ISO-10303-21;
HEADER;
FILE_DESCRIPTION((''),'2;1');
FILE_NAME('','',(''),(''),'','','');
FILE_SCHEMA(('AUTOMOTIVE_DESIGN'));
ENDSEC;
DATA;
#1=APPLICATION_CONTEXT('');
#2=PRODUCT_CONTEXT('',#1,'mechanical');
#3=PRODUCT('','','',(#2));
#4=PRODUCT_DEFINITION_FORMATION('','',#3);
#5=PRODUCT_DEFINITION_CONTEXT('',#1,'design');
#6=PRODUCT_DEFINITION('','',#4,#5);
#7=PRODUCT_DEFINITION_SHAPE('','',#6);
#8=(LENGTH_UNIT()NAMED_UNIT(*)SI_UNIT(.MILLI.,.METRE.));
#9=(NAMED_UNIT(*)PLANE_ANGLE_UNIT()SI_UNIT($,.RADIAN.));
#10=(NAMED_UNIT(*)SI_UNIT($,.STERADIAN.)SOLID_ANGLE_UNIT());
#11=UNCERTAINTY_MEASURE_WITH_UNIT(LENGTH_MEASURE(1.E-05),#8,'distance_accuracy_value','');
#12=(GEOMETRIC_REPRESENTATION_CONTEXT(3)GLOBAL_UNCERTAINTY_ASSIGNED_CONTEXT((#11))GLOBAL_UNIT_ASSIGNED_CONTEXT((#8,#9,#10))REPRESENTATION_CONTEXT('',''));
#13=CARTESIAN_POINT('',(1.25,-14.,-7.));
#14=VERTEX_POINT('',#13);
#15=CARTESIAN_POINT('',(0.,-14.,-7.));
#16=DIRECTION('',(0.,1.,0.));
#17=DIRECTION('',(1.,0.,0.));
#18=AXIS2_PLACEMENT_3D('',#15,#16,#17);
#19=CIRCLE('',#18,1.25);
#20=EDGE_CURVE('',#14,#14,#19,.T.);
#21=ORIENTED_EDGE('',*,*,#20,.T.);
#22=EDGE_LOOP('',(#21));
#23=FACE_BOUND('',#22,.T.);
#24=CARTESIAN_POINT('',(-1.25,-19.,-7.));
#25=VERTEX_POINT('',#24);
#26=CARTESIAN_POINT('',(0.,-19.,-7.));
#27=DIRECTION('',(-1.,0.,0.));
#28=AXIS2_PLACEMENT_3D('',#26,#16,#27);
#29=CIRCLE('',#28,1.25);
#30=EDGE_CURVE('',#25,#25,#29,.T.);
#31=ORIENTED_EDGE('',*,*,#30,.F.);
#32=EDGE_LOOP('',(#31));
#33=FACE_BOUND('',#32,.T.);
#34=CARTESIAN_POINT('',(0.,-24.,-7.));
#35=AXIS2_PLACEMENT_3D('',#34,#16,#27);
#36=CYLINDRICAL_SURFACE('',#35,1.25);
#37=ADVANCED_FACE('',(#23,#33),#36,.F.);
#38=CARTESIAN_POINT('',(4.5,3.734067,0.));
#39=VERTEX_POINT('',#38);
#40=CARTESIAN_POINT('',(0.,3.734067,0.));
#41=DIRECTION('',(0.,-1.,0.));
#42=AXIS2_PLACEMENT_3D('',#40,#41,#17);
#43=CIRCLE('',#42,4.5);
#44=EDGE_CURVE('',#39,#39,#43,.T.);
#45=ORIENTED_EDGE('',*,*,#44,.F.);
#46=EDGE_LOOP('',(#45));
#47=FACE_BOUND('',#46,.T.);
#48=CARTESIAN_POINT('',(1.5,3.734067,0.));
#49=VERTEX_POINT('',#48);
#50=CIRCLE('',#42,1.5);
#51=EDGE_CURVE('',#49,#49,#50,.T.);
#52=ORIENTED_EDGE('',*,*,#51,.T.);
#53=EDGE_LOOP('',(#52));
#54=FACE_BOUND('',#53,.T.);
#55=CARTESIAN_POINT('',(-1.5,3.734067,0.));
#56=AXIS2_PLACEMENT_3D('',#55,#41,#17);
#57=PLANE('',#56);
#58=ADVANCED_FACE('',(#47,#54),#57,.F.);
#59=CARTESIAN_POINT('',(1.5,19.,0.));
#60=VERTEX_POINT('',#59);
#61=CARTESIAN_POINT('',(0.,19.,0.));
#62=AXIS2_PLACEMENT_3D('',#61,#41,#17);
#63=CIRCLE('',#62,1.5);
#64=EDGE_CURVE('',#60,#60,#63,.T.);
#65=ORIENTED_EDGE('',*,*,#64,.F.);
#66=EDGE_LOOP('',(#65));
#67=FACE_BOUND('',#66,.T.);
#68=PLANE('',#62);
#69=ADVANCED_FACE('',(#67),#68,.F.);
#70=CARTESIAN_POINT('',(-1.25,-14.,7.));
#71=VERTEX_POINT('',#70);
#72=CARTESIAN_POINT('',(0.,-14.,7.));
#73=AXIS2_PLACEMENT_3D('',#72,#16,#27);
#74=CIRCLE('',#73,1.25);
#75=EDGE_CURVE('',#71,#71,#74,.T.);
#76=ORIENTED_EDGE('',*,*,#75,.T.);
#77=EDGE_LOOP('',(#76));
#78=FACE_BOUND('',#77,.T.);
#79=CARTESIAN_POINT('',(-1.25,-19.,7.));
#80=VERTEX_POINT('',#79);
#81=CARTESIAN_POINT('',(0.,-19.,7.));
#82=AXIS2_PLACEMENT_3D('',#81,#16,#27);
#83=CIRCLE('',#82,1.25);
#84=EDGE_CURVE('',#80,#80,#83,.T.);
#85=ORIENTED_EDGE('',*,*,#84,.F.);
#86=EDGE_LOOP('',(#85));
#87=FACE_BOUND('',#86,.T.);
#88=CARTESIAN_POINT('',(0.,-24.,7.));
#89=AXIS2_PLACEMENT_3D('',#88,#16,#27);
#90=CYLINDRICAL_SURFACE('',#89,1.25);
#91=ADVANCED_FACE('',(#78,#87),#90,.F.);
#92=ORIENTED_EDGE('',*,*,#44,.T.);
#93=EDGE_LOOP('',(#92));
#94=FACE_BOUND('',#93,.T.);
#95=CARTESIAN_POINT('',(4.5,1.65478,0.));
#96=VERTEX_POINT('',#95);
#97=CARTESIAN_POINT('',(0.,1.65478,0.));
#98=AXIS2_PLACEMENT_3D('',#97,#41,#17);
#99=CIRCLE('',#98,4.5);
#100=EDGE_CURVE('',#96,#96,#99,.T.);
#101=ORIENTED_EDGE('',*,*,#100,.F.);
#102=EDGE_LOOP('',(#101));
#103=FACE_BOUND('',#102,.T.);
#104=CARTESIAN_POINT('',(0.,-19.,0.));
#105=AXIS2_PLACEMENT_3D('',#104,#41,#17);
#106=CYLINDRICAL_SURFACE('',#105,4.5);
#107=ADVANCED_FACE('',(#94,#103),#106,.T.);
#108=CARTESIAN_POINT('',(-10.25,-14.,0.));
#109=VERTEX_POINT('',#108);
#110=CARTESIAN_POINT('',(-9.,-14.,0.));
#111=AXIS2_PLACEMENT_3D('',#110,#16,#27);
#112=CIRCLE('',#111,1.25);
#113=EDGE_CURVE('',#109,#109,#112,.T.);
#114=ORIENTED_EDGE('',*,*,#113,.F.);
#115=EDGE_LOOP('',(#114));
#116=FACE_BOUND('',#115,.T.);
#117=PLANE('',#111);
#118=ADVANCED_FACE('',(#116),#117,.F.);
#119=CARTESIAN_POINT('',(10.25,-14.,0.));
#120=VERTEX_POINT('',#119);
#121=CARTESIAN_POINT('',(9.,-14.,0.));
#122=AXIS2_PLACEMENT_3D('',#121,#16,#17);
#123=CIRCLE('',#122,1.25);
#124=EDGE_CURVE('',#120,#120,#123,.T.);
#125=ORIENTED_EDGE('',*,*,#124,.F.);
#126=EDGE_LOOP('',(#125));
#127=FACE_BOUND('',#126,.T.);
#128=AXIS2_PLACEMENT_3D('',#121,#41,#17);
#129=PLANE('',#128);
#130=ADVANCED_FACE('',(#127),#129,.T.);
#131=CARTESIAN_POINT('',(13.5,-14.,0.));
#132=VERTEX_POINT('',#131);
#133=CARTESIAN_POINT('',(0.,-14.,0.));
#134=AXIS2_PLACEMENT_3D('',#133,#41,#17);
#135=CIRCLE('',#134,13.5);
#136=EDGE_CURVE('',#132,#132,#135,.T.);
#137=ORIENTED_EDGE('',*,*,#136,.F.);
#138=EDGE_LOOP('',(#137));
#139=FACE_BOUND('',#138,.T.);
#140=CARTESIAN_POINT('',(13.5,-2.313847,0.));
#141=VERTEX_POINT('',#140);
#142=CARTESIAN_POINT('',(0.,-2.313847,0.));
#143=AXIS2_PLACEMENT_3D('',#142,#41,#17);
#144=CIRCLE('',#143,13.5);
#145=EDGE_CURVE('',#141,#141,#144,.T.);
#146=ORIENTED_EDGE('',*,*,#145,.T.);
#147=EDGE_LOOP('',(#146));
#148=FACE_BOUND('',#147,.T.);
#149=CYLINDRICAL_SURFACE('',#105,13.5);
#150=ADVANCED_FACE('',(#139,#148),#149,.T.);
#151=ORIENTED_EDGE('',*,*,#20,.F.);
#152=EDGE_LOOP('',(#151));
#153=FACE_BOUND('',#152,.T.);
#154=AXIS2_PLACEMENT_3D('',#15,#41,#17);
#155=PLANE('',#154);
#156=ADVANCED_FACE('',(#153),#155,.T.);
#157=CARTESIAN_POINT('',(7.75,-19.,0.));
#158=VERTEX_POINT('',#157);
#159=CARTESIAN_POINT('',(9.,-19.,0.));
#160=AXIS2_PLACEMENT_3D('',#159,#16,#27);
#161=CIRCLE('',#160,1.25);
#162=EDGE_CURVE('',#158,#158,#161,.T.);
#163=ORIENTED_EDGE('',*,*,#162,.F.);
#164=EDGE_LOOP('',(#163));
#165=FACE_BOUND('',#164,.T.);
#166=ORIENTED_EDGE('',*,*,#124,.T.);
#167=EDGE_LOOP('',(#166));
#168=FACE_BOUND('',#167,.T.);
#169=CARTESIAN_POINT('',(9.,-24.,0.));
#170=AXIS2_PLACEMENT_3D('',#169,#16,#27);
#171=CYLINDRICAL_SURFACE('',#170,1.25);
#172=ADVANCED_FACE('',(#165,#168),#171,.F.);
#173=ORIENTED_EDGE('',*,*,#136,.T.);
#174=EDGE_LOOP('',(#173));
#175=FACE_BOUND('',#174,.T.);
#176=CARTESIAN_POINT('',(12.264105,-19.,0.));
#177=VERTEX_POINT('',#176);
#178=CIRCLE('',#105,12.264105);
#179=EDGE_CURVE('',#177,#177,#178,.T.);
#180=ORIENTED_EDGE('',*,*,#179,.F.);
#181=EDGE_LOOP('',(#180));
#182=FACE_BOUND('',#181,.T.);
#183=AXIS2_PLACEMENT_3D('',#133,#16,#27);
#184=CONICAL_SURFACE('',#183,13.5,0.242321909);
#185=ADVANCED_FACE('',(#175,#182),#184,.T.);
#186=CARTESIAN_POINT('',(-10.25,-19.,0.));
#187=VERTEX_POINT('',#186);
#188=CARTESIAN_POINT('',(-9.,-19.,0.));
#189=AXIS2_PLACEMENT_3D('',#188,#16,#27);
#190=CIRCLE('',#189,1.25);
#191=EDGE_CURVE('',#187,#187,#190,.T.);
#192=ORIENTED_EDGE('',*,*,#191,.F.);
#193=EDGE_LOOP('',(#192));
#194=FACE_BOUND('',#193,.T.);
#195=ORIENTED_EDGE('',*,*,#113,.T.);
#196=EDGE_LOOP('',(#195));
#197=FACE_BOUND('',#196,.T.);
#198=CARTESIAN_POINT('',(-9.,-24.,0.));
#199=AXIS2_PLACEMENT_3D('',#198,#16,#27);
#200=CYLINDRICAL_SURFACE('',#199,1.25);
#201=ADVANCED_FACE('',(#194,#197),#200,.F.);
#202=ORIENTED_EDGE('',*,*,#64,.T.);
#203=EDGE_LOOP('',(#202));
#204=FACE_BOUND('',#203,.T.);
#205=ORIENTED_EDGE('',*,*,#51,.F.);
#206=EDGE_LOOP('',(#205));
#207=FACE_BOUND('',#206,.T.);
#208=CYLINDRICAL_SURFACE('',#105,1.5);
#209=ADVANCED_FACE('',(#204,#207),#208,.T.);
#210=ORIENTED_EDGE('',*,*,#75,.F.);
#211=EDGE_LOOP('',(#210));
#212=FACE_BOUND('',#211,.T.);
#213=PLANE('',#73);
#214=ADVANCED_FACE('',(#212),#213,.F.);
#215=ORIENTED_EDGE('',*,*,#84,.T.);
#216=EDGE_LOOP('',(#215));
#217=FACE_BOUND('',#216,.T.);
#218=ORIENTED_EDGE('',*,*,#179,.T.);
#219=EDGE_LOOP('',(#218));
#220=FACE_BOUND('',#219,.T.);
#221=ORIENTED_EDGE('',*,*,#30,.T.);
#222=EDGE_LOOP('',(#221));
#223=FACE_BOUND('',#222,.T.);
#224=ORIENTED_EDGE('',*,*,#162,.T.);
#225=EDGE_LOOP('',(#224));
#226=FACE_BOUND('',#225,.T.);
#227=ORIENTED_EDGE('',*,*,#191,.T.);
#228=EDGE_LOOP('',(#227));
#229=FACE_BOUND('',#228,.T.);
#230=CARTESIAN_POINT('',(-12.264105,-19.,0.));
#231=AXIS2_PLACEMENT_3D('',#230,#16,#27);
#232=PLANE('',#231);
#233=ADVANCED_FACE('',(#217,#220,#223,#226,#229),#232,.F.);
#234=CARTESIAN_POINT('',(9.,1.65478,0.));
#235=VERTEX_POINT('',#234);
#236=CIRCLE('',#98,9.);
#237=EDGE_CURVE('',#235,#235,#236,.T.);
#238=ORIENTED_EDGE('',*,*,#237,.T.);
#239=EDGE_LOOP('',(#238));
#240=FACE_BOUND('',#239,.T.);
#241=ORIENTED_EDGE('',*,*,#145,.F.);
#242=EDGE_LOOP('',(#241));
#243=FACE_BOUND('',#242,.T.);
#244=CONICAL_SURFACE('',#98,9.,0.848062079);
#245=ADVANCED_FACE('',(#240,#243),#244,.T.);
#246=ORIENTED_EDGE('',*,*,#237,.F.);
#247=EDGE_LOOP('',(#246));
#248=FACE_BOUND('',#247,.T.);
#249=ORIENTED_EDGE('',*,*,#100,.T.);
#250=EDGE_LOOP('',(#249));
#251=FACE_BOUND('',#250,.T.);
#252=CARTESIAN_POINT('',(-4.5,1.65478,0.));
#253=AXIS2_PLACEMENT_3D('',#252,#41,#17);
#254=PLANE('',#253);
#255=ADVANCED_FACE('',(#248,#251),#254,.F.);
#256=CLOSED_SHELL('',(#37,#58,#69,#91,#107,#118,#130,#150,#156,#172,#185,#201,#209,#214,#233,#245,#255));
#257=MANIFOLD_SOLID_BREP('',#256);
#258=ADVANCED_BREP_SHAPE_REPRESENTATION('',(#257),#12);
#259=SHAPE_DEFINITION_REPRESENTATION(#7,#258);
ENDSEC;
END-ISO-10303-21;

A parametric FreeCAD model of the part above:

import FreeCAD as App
import Part
import Sketcher

V = App.Vector
Q = App.Units.Quantity


def add_polygon(sketch, points):
    """Adds a closed chain of lines whose ends are joined by coincident constraints."""
    first, n = sketch.GeometryCount, len(points)
    for a, b in zip(points, points[1:] + points[:1]):
        sketch.addGeometry(Part.LineSegment(App.Vector(*a, 0), App.Vector(*b, 0)), False)
    for i in range(n):
        sketch.addConstraint(Sketcher.Constraint("Coincident", first + i, 2, first + (i + 1) % n, 1))

doc = App.newDocument("Part")
body = doc.addObject("PartDesign::Body", "Body")

# Sketch on XY plane
sketch1 = body.newObject("Sketcher::SketchObject", "Sketch")
sketch1.AttachmentSupport = (doc.getObject("XY_Plane"), [""])
sketch1.MapMode = "FlatFace"
add_polygon(sketch1, [(0, 19), (-1.5, 19), (-1.5, 3.7), (-4.5, 3.7), (-4.5, 1.7), (-9, 1.7), (-13.5, -2.3), (-13.5, -14), (-12.3, -19), (0, -19)])  # lines 0-9
sketch1.addConstraint([
    Sketcher.Constraint("Horizontal", 0),
    Sketcher.Constraint("Vertical", 1),
    Sketcher.Constraint("Horizontal", 2),
    Sketcher.Constraint("Vertical", 3),
    Sketcher.Constraint("Horizontal", 4),
    Sketcher.Constraint("Vertical", 6),
    Sketcher.Constraint("Horizontal", 8),
    Sketcher.Constraint("Vertical", 9),
    Sketcher.Constraint("Symmetric", 8, 2, 9, 2, -1, 1),
    Sketcher.Constraint("DistanceX", 2, 2, 2, 1, Q("3 mm")),
    Sketcher.Constraint("DistanceY", 9, 1, 9, 2, Q("38 mm")),
    Sketcher.Constraint("Distance", 5, Q("6 mm")),
    Sketcher.Constraint("DistanceX", 0, 2, 0, 1, Q("1.5 mm")),
    Sketcher.Constraint("DistanceX", 4, 2, 4, 1, Q("4.5 mm")),
    Sketcher.Constraint("DistanceY", 6, 2, -1, 1, Q("14 mm")),
    Sketcher.Constraint("DistanceX", 5, 2, 3, 2, Q("9 mm")),
    Sketcher.Constraint("Distance", 7, Q("5.150479 mm")),
    Sketcher.Constraint("DistanceY", 1, 2, 1, 1, Q("15.265933 mm")),
    Sketcher.Constraint("DistanceY", 3, 2, 3, 1, Q("2.079287 mm")),
])
revolution = body.newObject("PartDesign::Revolution", "Revolution")
revolution.Profile = sketch1
revolution.ReferenceAxis = (sketch1, ["V_Axis"])
revolution.Angle = 360

# Sketch on XZ plane
sketch2 = body.newObject("Sketcher::SketchObject", "Sketch001")
sketch2.AttachmentSupport = (doc.getObject("XZ_Plane"), [""])
sketch2.MapMode = "FlatFace"
sketch2.AttachmentOffset = App.Placement(V(0, 0, 19), App.Rotation())
sketch2.addGeometry([
    Part.Circle(V(-9, 0, 0), V(0, 0, 1), 1.2),
    Part.Circle(V(9, 0, 0), V(0, 0, 1), 1.2),
    Part.Circle(V(0, 7, 0), V(0, 0, 1), 1.2),
    Part.Circle(V(0, -7, 0), V(0, 0, 1), 1.2),
], False)
sketch2.addConstraint([
    Sketcher.Constraint("Equal", 0, 1),
    Sketcher.Constraint("Equal", 1, 2),
    Sketcher.Constraint("Equal", 2, 3),
    Sketcher.Constraint("Symmetric", 0, 3, 1, 3, -1, 1),
    Sketcher.Constraint("Symmetric", 2, 3, 3, 3, -1, 1),
    Sketcher.Constraint("PointOnObject", 0, 3, -1),
    Sketcher.Constraint("PointOnObject", 2, 3, -2),
    Sketcher.Constraint("Diameter", 0, Q("2.5 mm")),
    Sketcher.Constraint("DistanceX", 0, 3, -1, 1, Q("9 mm")),
    Sketcher.Constraint("DistanceY", -1, 1, 2, 3, Q("7 mm")),
])
pocket1 = body.newObject("PartDesign::Pocket", "Pocket")
pocket1.Profile = sketch2
pocket1.Length = 10
pocket1.Midplane = True

doc.recompute()
